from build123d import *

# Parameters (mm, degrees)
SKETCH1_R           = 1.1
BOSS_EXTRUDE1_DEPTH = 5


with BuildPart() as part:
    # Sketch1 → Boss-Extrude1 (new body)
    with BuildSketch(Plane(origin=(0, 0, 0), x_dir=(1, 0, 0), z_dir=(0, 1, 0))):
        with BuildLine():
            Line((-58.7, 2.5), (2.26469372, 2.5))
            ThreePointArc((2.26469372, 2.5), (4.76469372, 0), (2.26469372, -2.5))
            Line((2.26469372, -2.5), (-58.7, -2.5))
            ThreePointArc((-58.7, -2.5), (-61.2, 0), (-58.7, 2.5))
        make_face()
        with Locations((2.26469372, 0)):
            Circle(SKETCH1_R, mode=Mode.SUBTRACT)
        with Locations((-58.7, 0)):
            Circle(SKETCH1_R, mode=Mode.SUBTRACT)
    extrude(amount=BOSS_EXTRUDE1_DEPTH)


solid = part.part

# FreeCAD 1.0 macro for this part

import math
import FreeCAD as App
import Part
import Sketcher

doc = App.newDocument("Part")
params = doc.addObject("Spreadsheet::Sheet", "Params")
for row, (alias, value) in enumerate([
    ("sketch1_diameter", "2.2 mm"),
    ("sketch1_radius", "2.5 mm"),
    ("pad1_length", "5 mm"),
], start=1):
    params.set(f"A{row}", alias)
    params.set(f"B{row}", "=" + value)
    params.setAlias(f"B{row}", alias)

body = doc.addObject("PartDesign::Body", "Body")

# Sketch on XZ plane
sketch1 = body.newObject("Sketcher::SketchObject", "Sketch")
sketch1.AttachmentSupport = (doc.getObject("XZ_Plane"), [""])
sketch1.MapMode = "FlatFace"
sketch1.addGeometry(Part.LineSegment(App.Vector(2.3, -2.5, 0), App.Vector(-58.7, -2.5, 0)), False)
sketch1.addGeometry(Part.ArcOfCircle(Part.Circle(App.Vector(-58.7, 0, 0), App.Vector(0, 0, 1), 2.5), math.radians(90), math.radians(270)), False)
sketch1.addGeometry(Part.LineSegment(App.Vector(-58.7, 2.5, 0), App.Vector(2.3, 2.5, 0)), False)
sketch1.addGeometry(Part.ArcOfCircle(Part.Circle(App.Vector(2.3, 0, 0), App.Vector(0, 0, 1), 2.5), math.radians(-90), math.radians(90)), False)
sketch1.addGeometry(Part.Circle(App.Vector(2.3, 0, 0), App.Vector(0, 0, 1), 1.1), False)
sketch1.addGeometry(Part.Circle(App.Vector(-58.7, 0, 0), App.Vector(0, 0, 1), 1.1), False)
sketch1.addConstraint(Sketcher.Constraint("Tangent", 0, 2, 1, 2))
sketch1.addConstraint(Sketcher.Constraint("Tangent", 1, 1, 2, 1))
sketch1.addConstraint(Sketcher.Constraint("Tangent", 2, 2, 3, 2))
sketch1.addConstraint(Sketcher.Constraint("Tangent", 3, 1, 0, 1))
sketch1.addConstraint(Sketcher.Constraint("Horizontal", 0))
sketch1.addConstraint(Sketcher.Constraint("Horizontal", 2))
sketch1.addConstraint(Sketcher.Constraint("Coincident", 4, 3, 3, 3))
sketch1.addConstraint(Sketcher.Constraint("Coincident", 5, 3, 1, 3))
sketch1.addConstraint(Sketcher.Constraint("Equal", 4, 5))
sketch1.addConstraint(Sketcher.Constraint("PointOnObject", 1, 3, -1))
sketch1.addConstraint(Sketcher.Constraint("Diameter", 4, 2.2))
sketch1.addConstraint(Sketcher.Constraint("Radius", 1, 2.5))
sketch1.addConstraint(Sketcher.Constraint("DistanceX", 1, 3, -1, 1, 58.7))
sketch1.addConstraint(Sketcher.Constraint("DistanceX", 0, 2, 0, 1, 60.964694))
sketch1.setExpression("Constraints[10]", "Params.sketch1_diameter")
sketch1.setExpression("Constraints[11]", "Params.sketch1_radius")
pad1 = body.newObject("PartDesign::Pad", "Pad")
pad1.Profile = sketch1
pad1.setExpression("Length", "Params.pad1_length")
pad1.Reversed = True

doc.recompute()
